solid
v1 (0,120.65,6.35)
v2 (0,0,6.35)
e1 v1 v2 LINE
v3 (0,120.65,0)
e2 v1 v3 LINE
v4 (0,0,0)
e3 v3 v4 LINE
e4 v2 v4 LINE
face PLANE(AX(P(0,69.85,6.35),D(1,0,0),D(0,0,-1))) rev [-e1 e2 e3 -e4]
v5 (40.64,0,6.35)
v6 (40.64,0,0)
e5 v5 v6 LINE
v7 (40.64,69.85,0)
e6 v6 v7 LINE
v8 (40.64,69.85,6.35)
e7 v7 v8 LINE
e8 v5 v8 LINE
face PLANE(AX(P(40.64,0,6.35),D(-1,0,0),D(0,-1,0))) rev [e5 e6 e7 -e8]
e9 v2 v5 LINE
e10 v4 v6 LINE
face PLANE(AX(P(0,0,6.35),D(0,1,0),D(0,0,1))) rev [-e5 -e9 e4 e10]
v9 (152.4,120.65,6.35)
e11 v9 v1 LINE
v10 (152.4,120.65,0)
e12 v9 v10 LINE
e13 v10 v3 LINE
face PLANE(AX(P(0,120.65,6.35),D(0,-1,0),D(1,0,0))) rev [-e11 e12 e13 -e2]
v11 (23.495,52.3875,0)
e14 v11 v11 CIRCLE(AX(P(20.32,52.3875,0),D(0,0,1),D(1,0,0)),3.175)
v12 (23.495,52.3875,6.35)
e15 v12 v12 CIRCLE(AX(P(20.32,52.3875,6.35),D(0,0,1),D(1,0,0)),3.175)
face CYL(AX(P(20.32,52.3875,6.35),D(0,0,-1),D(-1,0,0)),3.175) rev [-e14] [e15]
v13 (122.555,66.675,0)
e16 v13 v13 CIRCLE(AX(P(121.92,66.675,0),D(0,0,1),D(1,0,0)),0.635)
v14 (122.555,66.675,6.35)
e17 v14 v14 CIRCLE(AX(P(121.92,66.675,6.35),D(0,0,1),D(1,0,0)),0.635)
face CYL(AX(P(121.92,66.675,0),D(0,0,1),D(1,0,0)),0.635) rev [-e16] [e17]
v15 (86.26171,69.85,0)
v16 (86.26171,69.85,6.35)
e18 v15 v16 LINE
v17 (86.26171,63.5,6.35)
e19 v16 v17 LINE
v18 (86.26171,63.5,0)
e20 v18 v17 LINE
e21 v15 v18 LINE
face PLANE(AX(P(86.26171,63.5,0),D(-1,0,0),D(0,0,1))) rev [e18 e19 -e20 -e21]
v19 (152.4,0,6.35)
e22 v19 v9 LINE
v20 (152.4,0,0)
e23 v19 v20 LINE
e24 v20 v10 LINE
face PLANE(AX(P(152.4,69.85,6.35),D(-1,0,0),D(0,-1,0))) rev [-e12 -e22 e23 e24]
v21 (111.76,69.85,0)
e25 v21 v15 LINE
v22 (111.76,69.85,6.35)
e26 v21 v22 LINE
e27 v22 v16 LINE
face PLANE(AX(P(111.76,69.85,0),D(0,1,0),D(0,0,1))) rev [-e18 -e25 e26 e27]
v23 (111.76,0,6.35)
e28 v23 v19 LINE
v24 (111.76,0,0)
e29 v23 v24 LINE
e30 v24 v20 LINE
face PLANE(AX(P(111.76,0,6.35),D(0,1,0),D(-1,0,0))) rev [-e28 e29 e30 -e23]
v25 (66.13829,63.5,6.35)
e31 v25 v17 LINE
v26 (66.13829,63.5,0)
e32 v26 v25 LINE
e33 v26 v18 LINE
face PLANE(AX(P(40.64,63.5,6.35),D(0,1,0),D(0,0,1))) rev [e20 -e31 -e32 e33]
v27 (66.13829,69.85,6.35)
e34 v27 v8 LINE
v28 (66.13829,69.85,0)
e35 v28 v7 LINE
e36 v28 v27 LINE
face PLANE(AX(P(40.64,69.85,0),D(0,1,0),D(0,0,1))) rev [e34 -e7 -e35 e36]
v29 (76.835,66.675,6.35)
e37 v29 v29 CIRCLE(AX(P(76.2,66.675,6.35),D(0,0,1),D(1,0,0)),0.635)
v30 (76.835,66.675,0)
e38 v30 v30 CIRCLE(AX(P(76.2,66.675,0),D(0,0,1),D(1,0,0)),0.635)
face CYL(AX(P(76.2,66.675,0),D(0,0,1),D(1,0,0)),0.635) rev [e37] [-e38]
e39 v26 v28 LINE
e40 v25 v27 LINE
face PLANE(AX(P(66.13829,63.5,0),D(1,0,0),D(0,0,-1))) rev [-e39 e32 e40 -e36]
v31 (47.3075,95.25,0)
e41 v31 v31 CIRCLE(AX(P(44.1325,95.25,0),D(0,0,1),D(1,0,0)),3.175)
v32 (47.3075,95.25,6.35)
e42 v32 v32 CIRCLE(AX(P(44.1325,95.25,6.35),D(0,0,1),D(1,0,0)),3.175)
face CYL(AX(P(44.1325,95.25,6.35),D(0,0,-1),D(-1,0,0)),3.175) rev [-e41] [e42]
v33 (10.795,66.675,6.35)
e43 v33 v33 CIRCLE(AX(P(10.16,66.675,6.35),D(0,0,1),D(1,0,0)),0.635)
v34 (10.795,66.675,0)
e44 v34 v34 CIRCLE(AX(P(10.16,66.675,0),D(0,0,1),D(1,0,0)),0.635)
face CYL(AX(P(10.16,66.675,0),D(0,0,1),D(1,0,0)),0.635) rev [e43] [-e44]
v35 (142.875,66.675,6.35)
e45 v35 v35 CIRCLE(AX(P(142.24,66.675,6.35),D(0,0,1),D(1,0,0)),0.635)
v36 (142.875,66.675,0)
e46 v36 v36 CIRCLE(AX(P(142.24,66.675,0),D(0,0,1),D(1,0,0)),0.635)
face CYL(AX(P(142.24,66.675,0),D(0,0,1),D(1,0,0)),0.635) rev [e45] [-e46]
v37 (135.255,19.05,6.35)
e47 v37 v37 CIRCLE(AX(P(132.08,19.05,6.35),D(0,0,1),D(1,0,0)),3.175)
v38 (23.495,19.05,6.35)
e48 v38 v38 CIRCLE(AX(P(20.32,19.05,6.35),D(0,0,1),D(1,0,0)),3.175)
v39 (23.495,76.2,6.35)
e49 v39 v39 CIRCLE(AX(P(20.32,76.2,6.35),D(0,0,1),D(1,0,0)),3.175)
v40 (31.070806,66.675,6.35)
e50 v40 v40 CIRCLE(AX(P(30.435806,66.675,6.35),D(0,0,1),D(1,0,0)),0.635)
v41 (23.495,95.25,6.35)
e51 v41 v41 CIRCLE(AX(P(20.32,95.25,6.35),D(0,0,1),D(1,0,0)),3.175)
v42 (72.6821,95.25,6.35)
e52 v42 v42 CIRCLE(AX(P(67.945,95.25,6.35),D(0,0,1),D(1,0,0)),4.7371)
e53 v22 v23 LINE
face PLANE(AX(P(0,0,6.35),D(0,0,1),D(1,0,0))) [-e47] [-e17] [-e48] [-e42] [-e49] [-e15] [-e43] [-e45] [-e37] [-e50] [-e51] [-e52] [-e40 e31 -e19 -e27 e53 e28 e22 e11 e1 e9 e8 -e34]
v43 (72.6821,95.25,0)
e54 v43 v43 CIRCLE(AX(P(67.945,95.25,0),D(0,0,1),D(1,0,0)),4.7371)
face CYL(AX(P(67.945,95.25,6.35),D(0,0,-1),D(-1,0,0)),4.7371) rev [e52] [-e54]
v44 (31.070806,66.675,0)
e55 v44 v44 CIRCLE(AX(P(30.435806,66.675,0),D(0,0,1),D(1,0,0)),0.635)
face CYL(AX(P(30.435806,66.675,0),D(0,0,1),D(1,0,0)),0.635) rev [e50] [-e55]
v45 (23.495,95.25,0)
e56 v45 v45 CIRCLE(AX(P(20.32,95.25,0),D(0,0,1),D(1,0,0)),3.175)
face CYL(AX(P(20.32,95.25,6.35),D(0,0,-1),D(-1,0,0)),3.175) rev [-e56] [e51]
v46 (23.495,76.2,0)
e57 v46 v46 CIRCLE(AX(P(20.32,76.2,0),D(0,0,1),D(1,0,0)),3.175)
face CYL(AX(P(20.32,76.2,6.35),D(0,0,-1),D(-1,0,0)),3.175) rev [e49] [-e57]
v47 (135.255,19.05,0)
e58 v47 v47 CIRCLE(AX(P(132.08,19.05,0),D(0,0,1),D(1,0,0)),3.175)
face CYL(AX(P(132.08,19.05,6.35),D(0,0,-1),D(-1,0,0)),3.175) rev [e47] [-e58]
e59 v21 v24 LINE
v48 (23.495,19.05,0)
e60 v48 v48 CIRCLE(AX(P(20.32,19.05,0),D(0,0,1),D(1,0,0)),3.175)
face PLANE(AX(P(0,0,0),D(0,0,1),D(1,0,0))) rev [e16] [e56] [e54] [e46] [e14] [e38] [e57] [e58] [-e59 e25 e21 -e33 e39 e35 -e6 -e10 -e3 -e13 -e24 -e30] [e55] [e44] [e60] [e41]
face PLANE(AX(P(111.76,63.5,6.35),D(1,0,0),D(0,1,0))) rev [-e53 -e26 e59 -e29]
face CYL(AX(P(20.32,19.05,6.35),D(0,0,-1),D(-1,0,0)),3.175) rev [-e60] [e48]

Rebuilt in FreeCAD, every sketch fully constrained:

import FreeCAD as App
import Part
import Sketcher

V = App.Vector
Q = App.Units.Quantity


def add_polygon(sketch, points):
    """Adds a closed chain of lines whose ends are joined by coincident constraints."""
    first, n = sketch.GeometryCount, len(points)
    for a, b in zip(points, points[1:] + points[:1]):
        sketch.addGeometry(Part.LineSegment(App.Vector(*a, 0), App.Vector(*b, 0)), False)
    for i in range(n):
        sketch.addConstraint(Sketcher.Constraint("Coincident", first + i, 2, first + (i + 1) % n, 1))

doc = App.newDocument("Part")
params = doc.addObject("Spreadsheet::Sheet", "Params")
for row, (alias, value) in enumerate([
    ("sketch1_diameter", "0.25 in"),
    ("sketch1_width", "6 in"),
    ("sketch1_diameter2", "0.373 in"),
    ("sketch1_width2", "1.6 in"),
    ("sketch1_height", "2.5 in"),
    ("pad1_length", "0.25 in"),
    ("sketch2_height", "0.25 in"),
    ("pocket1_length", "0.25 in"),
    ("sketch3_diameter", "0.05 in"),
    ("pocket2_length", "0.25 in"),
    ("sketch4_diameter", "0.05 in"),
    ("pocket3_length", "0.25 in"),
], start=1):
    params.set(f"A{row}", alias)
    params.set(f"B{row}", "=" + value)
    params.setAlias(f"B{row}", alias)

body = doc.addObject("PartDesign::Body", "Body")

# Sketch on XY plane
sketch1 = body.newObject("Sketcher::SketchObject", "Sketch")
sketch1.AttachmentSupport = (doc.getObject("XY_Plane"), [""])
sketch1.MapMode = "FlatFace"
add_polygon(sketch1, [(0, 0), (40.6, 0), (40.6, 63.5), (111.8, 63.5), (111.8, 0), (152.4, 0), (152.4, 120.7), (0, 120.7)])  # lines 0-7
sketch1.addGeometry(Part.Circle(V(20.3, 19.1, 0), V(0, 0, 1), 3.2), False)  # 8
sketch1.addGeometry(Part.Circle(V(20.3, 52.4, 0), V(0, 0, 1), 3.2), False)  # 9
sketch1.addGeometry(Part.Circle(V(132.1, 19.1, 0), V(0, 0, 1), 3.2), False)  # 10
sketch1.addGeometry(Part.Circle(V(20.3, 76.2, 0), V(0, 0, 1), 3.2), False)  # 11
sketch1.addGeometry(Part.Circle(V(20.3, 95.2, 0), V(0, 0, 1), 3.2), False)  # 12
sketch1.addGeometry(Part.Circle(V(44.1, 95.2, 0), V(0, 0, 1), 3.2), False)  # 13
sketch1.addGeometry(Part.Circle(V(67.9, 95.2, 0), V(0, 0, 1), 4.7), False)  # 14
sketch1.addConstraint(Sketcher.Constraint("Horizontal", 0))
sketch1.addConstraint(Sketcher.Constraint("Vertical", 1))
sketch1.addConstraint(Sketcher.Constraint("Horizontal", 2))
sketch1.addConstraint(Sketcher.Constraint("Vertical", 3))
sketch1.addConstraint(Sketcher.Constraint("Horizontal", 4))
sketch1.addConstraint(Sketcher.Constraint("Vertical", 5))
sketch1.addConstraint(Sketcher.Constraint("Horizontal", 6))
sketch1.addConstraint(Sketcher.Constraint("Vertical", 7))
sketch1.addConstraint(Sketcher.Constraint("Coincident", 7, 2, -1, 1))
sketch1.addConstraint(Sketcher.Constraint("Equal", 8, 9))
sketch1.addConstraint(Sketcher.Constraint("Equal", 9, 10))
sketch1.addConstraint(Sketcher.Constraint("Equal", 10, 11))
sketch1.addConstraint(Sketcher.Constraint("Equal", 11, 12))
sketch1.addConstraint(Sketcher.Constraint("Equal", 12, 13))
sketch1.addConstraint(Sketcher.Constraint("PointOnObject", 3, 2, -1))
sketch1.addConstraint(Sketcher.Constraint("Horizontal", 8, 3, 10, 3))
sketch1.addConstraint(Sketcher.Constraint("Horizontal", 12, 3, 13, 3))
sketch1.addConstraint(Sketcher.Constraint("Horizontal", 13, 3, 14, 3))
sketch1.addConstraint(Sketcher.Constraint("Vertical", 8, 3, 9, 3))
sketch1.addConstraint(Sketcher.Constraint("Vertical", 9, 3, 11, 3))
sketch1.addConstraint(Sketcher.Constraint("Vertical", 11, 3, 12, 3))
sketch1.addConstraint(Sketcher.Constraint("Equal", 0, 4))
sketch1.addConstraint(Sketcher.Constraint("Diameter", 8, Q("0.25 in")))
sketch1.addConstraint(Sketcher.Constraint("DistanceX", 6, 2, 6, 1, Q("6 in")))
sketch1.addConstraint(Sketcher.Constraint("Diameter", 14, Q("0.373 in")))
sketch1.addConstraint(Sketcher.Constraint("DistanceX", 0, 1, 0, 2, Q("1.6 in")))
sketch1.addConstraint(Sketcher.Constraint("DistanceY", 1, 1, 1, 2, Q("2.5 in")))
sketch1.addConstraint(Sketcher.Constraint("DistanceY", -1, 1, 11, 3, Q("3 in")))
sketch1.addConstraint(Sketcher.Constraint("DistanceY", 8, 3, 12, 3, Q("3 in")))
sketch1.addConstraint(Sketcher.Constraint("DistanceY", 14, 3, 5, 2, Q("1 in")))
sketch1.addConstraint(Sketcher.Constraint("DistanceY", 5, 1, 5, 2, Q("4.75 in")))
sketch1.addConstraint(Sketcher.Constraint("DistanceX", -1, 1, 8, 3, Q("0.8 in")))
sketch1.addConstraint(Sketcher.Constraint("DistanceX", -1, 1, 10, 3, Q("5.2 in")))
sketch1.addConstraint(Sketcher.Constraint("DistanceY", -1, 1, 9, 3, Q("2.0625 in")))
sketch1.addConstraint(Sketcher.Constraint("DistanceX", -1, 1, 14, 3, Q("2.675 in")))
sketch1.addConstraint(Sketcher.Constraint("DistanceX", 12, 3, 13, 3, Q("0.9375 in")))
sketch1.setExpression("Constraints[30]", "Params.sketch1_diameter")
sketch1.setExpression("Constraints[31]", "Params.sketch1_width")
sketch1.setExpression("Constraints[32]", "Params.sketch1_diameter2")
sketch1.setExpression("Constraints[33]", "Params.sketch1_width2")
sketch1.setExpression("Constraints[34]", "Params.sketch1_height")
pad1 = body.newObject("PartDesign::Pad", "Pad")
pad1.Profile = sketch1
pad1.setExpression("Length", "Params.pad1_length")

# Sketch on XY plane
sketch2 = body.newObject("Sketcher::SketchObject", "Sketch001")
sketch2.AttachmentSupport = (doc.getObject("XY_Plane"), [""])
sketch2.MapMode = "FlatFace"
sketch2.AttachmentOffset = App.Placement(V(0, 0, 0.25 * 25.4), App.Rotation())
add_polygon(sketch2, [(41, 70), (41, 64), (66, 64), (66, 70)])  # lines 0-3
add_polygon(sketch2, [(86, 70), (86, 64), (112, 64), (112, 70)])  # lines 4-7
sketch2.addConstraint(Sketcher.Constraint("Vertical", 0))
sketch2.addConstraint(Sketcher.Constraint("Horizontal", 1))
sketch2.addConstraint(Sketcher.Constraint("Vertical", 2))
sketch2.addConstraint(Sketcher.Constraint("Horizontal", 3))
sketch2.addConstraint(Sketcher.Constraint("Vertical", 4))
sketch2.addConstraint(Sketcher.Constraint("Horizontal", 5))
sketch2.addConstraint(Sketcher.Constraint("Vertical", 6))
sketch2.addConstraint(Sketcher.Constraint("Horizontal", 7))
sketch2.addConstraint(Sketcher.Constraint("Horizontal", 1, 2, 4, 2))
sketch2.addConstraint(Sketcher.Constraint("Horizontal", 3, 2, 6, 2))
sketch2.addConstraint(Sketcher.Constraint("Equal", 3, 5))
sketch2.addConstraint(Sketcher.Constraint("DistanceY", 0, 2, 0, 1, Q("0.25 in")))
sketch2.addConstraint(Sketcher.Constraint("DistanceX", -1, 1, 0, 2, Q("1.6 in")))
sketch2.addConstraint(Sketcher.Constraint("DistanceY", -1, 1, 0, 2, Q("2.5 in")))
sketch2.addConstraint(Sketcher.Constraint("DistanceX", -1, 1, 5, 2, Q("4.4 in")))
sketch2.addConstraint(Sketcher.Constraint("DistanceX", 1, 1, 1, 2, 25.49829))
sketch2.setExpression("Constraints[19]", "Params.sketch2_height")
pocket1 = body.newObject("PartDesign::Pocket", "Pocket")
pocket1.Profile = sketch2
pocket1.setExpression("Length", "Params.pocket1_length")

# Sketch on XY plane
sketch3 = body.newObject("Sketcher::SketchObject", "Sketch002")
sketch3.AttachmentSupport = (doc.getObject("XY_Plane"), [""])
sketch3.MapMode = "FlatFace"
sketch3.AttachmentOffset = App.Placement(V(0, 0, 0.25 * 25.4), App.Rotation())
sketch3.addGeometry(Part.Circle(V(76.2, 66.7, 0), V(0, 0, 1), 0.6), False)
sketch3.addConstraint(Sketcher.Constraint("Diameter", 0, Q("0.05 in")))
sketch3.addConstraint(Sketcher.Constraint("DistanceX", -1, 1, 0, 3, Q("3 in")))
sketch3.addConstraint(Sketcher.Constraint("DistanceY", -1, 1, 0, 3, Q("2.625 in")))
sketch3.setExpression("Constraints[0]", "Params.sketch3_diameter")
pocket2 = body.newObject("PartDesign::Pocket", "Pocket001")
pocket2.Profile = sketch3
pocket2.setExpression("Length", "Params.pocket2_length")

# Sketch on XY plane
sketch4 = body.newObject("Sketcher::SketchObject", "Sketch003")
sketch4.AttachmentSupport = (doc.getObject("XY_Plane"), [""])
sketch4.MapMode = "FlatFace"
sketch4.AttachmentOffset = App.Placement(V(0, 0, 0.25 * 25.4), App.Rotation())
sketch4.addGeometry(Part.Circle(V(10.2, 66.7, 0), V(0, 0, 1), 0.6), False)
sketch4.addGeometry(Part.Circle(V(30.4, 66.7, 0), V(0, 0, 1), 0.6), False)
sketch4.addGeometry(Part.Circle(V(121.9, 66.7, 0), V(0, 0, 1), 0.6), False)
sketch4.addGeometry(Part.Circle(V(142.2, 66.7, 0), V(0, 0, 1), 0.6), False)
sketch4.addConstraint(Sketcher.Constraint("Equal", 0, 1))
sketch4.addConstraint(Sketcher.Constraint("Equal", 1, 2))
sketch4.addConstraint(Sketcher.Constraint("Equal", 2, 3))
sketch4.addConstraint(Sketcher.Constraint("Horizontal", 0, 3, 1, 3))
sketch4.addConstraint(Sketcher.Constraint("Horizontal", 1, 3, 2, 3))
sketch4.addConstraint(Sketcher.Constraint("Horizontal", 2, 3, 3, 3))
sketch4.addConstraint(Sketcher.Constraint("Diameter", 0, Q("0.05 in")))
sketch4.addConstraint(Sketcher.Constraint("DistanceX", -1, 1, 0, 3, Q("0.4 in")))
sketch4.addConstraint(Sketcher.Constraint("DistanceX", -1, 1, 2, 3, Q("4.8 in")))
sketch4.addConstraint(Sketcher.Constraint("DistanceX", -1, 1, 3, 3, Q("5.6 in")))
sketch4.addConstraint(Sketcher.Constraint("DistanceY", -1, 1, 0, 3, Q("2.625 in")))
sketch4.addConstraint(Sketcher.Constraint("DistanceX", -1, 1, 1, 3, 30.435806))
sketch4.setExpression("Constraints[6]", "Params.sketch4_diameter")
pocket3 = body.newObject("PartDesign::Pocket", "Pocket002")
pocket3.Profile = sketch4
pocket3.setExpression("Length", "Params.pocket3_length")

doc.recompute()
